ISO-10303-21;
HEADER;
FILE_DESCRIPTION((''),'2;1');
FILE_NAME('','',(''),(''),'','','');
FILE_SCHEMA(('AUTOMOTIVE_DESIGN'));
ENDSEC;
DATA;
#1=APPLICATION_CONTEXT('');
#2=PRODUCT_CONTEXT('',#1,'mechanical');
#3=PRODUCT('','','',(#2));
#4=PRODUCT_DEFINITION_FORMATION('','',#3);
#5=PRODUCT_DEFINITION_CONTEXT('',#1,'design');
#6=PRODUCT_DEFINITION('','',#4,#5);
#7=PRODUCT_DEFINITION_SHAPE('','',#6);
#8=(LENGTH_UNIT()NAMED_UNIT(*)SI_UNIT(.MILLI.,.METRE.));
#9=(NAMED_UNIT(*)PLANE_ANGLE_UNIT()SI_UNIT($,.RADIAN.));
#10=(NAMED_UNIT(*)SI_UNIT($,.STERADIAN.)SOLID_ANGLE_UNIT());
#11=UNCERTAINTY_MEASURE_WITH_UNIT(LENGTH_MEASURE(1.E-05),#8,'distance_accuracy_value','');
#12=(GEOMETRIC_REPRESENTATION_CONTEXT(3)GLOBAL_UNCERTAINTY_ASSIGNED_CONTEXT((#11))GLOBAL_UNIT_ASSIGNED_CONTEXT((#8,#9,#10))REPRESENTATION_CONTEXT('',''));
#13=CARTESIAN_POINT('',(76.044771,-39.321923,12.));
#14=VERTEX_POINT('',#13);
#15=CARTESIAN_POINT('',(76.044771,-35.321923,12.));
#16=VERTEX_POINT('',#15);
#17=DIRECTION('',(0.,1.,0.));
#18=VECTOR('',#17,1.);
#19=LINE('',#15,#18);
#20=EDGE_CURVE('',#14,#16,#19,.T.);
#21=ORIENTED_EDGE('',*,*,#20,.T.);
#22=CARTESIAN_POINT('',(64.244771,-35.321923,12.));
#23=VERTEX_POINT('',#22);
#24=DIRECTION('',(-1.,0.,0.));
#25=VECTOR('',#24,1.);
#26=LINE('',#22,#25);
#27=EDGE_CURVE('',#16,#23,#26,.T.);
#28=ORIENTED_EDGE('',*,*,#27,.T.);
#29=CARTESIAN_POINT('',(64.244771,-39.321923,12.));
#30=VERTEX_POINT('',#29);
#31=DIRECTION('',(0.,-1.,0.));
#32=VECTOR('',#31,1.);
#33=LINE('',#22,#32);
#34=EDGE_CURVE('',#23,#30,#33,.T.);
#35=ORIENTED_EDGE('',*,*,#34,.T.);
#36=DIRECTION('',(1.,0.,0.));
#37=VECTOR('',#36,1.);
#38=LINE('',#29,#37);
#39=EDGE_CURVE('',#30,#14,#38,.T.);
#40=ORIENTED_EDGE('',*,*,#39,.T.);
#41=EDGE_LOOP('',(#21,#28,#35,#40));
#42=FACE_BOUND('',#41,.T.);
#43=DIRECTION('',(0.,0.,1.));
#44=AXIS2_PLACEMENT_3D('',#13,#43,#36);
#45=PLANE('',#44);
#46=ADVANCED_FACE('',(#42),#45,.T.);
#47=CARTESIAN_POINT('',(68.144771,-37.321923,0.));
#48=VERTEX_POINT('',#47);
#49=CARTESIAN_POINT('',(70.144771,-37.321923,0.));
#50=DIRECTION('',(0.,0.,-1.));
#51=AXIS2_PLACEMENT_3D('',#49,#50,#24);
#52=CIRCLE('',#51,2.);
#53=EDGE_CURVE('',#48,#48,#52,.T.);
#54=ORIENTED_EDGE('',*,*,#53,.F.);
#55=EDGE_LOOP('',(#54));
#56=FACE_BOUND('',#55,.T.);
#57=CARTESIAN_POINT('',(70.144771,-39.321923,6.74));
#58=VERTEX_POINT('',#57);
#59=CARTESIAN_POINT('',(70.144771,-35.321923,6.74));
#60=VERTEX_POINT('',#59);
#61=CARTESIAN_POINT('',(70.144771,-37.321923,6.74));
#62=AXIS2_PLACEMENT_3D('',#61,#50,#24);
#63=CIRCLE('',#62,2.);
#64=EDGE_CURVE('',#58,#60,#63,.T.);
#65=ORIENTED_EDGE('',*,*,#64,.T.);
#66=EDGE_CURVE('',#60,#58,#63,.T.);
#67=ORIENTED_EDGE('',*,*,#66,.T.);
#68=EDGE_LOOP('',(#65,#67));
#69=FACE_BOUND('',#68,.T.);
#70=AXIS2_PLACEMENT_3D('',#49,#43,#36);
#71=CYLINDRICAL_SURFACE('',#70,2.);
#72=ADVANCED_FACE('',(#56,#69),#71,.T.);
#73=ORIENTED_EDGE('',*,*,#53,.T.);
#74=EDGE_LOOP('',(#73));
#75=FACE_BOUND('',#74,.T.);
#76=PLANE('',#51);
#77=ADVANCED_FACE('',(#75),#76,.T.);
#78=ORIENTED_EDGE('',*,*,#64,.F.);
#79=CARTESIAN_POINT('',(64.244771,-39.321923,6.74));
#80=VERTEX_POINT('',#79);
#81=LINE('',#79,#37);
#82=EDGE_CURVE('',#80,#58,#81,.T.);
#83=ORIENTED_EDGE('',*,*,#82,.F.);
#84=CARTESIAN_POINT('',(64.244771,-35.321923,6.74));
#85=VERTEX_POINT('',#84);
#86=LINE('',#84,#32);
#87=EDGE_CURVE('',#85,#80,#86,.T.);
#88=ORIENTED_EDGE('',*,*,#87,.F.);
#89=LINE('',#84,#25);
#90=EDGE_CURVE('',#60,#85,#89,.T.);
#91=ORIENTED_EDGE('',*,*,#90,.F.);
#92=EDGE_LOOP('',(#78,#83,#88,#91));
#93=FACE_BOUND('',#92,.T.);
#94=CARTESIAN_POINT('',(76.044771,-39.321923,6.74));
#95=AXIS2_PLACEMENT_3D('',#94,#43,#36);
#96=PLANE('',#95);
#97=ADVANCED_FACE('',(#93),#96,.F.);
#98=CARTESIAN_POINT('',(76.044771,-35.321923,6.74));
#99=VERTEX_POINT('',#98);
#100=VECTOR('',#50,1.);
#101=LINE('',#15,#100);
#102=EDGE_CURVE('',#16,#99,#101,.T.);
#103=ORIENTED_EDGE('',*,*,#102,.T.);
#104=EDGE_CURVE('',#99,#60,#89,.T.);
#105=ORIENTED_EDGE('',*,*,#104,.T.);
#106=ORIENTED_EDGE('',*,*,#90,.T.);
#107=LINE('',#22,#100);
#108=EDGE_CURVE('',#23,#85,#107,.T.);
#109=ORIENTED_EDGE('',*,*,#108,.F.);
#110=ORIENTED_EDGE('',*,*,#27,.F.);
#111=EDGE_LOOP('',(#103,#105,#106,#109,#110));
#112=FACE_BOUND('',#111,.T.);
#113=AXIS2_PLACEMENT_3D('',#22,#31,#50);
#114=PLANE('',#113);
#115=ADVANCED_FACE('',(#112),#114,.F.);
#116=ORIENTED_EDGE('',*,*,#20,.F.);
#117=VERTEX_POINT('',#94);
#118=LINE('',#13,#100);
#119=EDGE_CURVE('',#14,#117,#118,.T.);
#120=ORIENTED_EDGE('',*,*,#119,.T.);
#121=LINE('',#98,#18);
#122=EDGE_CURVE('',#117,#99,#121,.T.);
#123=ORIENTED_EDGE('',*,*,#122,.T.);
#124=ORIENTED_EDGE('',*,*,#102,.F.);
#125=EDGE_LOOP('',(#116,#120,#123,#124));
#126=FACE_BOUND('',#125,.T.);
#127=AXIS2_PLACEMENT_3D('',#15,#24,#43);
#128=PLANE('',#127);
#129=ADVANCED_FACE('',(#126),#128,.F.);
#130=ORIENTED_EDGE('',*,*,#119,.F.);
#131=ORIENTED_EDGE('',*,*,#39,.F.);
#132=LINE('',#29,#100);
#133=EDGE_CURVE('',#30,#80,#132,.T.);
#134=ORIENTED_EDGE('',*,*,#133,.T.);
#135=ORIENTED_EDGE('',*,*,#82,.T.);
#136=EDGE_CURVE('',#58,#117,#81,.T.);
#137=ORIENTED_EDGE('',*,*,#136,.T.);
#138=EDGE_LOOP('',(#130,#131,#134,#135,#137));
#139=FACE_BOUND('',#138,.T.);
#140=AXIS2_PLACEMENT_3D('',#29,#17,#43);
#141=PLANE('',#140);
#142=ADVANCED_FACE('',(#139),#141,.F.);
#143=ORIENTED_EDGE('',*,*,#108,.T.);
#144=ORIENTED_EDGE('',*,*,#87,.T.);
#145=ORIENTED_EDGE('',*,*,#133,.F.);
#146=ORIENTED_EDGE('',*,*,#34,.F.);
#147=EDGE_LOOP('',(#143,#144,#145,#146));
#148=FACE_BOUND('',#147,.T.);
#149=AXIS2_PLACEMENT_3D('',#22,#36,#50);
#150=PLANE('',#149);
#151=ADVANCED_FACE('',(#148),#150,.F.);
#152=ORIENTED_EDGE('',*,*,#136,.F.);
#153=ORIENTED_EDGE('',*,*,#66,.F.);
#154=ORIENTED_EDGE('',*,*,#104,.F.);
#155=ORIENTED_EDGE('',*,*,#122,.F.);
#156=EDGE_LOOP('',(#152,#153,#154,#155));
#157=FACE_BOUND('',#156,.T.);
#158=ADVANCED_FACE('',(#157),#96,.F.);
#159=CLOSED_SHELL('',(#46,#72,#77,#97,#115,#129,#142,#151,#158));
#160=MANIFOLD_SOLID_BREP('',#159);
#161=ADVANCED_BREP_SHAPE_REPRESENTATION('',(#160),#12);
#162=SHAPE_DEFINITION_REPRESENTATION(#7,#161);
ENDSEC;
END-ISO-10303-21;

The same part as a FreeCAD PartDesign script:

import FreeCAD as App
import Part
import Sketcher

doc = App.newDocument("Part")
body = doc.addObject("PartDesign::Body", "Body")

sketch1 = body.newObject("Sketcher::SketchObject", "Sketch")
sketch1.AttachmentSupport = (doc.getObject("XY_Plane"), [""])
sketch1.MapMode = "FlatFace"
sketch1.AttachmentOffset = App.Placement(App.Vector(0, 0, 6.74), App.Rotation())
sketch1.addGeometry([
    Part.LineSegment(App.Vector(64.2, -35.3, 0), App.Vector(64.2, -39.3, 0)),
    Part.LineSegment(App.Vector(64.2, -39.3, 0), App.Vector(76, -39.3, 0)),
    Part.LineSegment(App.Vector(76, -39.3, 0), App.Vector(76, -35.3, 0)),
    Part.LineSegment(App.Vector(76, -35.3, 0), App.Vector(64.2, -35.3, 0)),
], False)
sketch1.addConstraint([
    Sketcher.Constraint("Coincident", 0, 2, 1, 1),
    Sketcher.Constraint("Coincident", 1, 2, 2, 1),
    Sketcher.Constraint("Coincident", 2, 2, 3, 1),
    Sketcher.Constraint("Coincident", 3, 2, 0, 1),
    Sketcher.Constraint("Vertical", 0),
    Sketcher.Constraint("Horizontal", 1),
    Sketcher.Constraint("Vertical", 2),
    Sketcher.Constraint("Horizontal", 3),
    Sketcher.Constraint("DistanceY", 0, 2, 0, 1, 4.0),
    Sketcher.Constraint("DistanceX", 1, 1, 1, 2, 11.8),
    Sketcher.Constraint("DistanceX", -1, 1, 0, 2, 64.244771),
    Sketcher.Constraint("DistanceY", 0, 2, -1, 1, 39.321923),
])
pad1 = body.newObject("PartDesign::Pad", "Pad")
pad1.Profile = sketch1
pad1.Length = 5.26

sketch2 = body.newObject("Sketcher::SketchObject", "Sketch001")
sketch2.AttachmentSupport = (doc.getObject("XY_Plane"), [""])
sketch2.MapMode = "FlatFace"
sketch2.AttachmentOffset = App.Placement(App.Vector(0, 0, 6.74), App.Rotation())
sketch2.addGeometry(Part.Circle(App.Vector(70.1, -37.3, 0), App.Vector(0, 0, 1), 2), False)
sketch2.addConstraint([
    Sketcher.Constraint("Diameter", 0, 4.0),
    Sketcher.Constraint("DistanceX", -1, 1, 0, 3, 70.144771),
    Sketcher.Constraint("DistanceY", 0, 3, -1, 1, 37.321923),
])
pad2 = body.newObject("PartDesign::Pad", "Pad001")
pad2.Profile = sketch2
pad2.Length = 6.74
pad2.Reversed = True

doc.recompute()
